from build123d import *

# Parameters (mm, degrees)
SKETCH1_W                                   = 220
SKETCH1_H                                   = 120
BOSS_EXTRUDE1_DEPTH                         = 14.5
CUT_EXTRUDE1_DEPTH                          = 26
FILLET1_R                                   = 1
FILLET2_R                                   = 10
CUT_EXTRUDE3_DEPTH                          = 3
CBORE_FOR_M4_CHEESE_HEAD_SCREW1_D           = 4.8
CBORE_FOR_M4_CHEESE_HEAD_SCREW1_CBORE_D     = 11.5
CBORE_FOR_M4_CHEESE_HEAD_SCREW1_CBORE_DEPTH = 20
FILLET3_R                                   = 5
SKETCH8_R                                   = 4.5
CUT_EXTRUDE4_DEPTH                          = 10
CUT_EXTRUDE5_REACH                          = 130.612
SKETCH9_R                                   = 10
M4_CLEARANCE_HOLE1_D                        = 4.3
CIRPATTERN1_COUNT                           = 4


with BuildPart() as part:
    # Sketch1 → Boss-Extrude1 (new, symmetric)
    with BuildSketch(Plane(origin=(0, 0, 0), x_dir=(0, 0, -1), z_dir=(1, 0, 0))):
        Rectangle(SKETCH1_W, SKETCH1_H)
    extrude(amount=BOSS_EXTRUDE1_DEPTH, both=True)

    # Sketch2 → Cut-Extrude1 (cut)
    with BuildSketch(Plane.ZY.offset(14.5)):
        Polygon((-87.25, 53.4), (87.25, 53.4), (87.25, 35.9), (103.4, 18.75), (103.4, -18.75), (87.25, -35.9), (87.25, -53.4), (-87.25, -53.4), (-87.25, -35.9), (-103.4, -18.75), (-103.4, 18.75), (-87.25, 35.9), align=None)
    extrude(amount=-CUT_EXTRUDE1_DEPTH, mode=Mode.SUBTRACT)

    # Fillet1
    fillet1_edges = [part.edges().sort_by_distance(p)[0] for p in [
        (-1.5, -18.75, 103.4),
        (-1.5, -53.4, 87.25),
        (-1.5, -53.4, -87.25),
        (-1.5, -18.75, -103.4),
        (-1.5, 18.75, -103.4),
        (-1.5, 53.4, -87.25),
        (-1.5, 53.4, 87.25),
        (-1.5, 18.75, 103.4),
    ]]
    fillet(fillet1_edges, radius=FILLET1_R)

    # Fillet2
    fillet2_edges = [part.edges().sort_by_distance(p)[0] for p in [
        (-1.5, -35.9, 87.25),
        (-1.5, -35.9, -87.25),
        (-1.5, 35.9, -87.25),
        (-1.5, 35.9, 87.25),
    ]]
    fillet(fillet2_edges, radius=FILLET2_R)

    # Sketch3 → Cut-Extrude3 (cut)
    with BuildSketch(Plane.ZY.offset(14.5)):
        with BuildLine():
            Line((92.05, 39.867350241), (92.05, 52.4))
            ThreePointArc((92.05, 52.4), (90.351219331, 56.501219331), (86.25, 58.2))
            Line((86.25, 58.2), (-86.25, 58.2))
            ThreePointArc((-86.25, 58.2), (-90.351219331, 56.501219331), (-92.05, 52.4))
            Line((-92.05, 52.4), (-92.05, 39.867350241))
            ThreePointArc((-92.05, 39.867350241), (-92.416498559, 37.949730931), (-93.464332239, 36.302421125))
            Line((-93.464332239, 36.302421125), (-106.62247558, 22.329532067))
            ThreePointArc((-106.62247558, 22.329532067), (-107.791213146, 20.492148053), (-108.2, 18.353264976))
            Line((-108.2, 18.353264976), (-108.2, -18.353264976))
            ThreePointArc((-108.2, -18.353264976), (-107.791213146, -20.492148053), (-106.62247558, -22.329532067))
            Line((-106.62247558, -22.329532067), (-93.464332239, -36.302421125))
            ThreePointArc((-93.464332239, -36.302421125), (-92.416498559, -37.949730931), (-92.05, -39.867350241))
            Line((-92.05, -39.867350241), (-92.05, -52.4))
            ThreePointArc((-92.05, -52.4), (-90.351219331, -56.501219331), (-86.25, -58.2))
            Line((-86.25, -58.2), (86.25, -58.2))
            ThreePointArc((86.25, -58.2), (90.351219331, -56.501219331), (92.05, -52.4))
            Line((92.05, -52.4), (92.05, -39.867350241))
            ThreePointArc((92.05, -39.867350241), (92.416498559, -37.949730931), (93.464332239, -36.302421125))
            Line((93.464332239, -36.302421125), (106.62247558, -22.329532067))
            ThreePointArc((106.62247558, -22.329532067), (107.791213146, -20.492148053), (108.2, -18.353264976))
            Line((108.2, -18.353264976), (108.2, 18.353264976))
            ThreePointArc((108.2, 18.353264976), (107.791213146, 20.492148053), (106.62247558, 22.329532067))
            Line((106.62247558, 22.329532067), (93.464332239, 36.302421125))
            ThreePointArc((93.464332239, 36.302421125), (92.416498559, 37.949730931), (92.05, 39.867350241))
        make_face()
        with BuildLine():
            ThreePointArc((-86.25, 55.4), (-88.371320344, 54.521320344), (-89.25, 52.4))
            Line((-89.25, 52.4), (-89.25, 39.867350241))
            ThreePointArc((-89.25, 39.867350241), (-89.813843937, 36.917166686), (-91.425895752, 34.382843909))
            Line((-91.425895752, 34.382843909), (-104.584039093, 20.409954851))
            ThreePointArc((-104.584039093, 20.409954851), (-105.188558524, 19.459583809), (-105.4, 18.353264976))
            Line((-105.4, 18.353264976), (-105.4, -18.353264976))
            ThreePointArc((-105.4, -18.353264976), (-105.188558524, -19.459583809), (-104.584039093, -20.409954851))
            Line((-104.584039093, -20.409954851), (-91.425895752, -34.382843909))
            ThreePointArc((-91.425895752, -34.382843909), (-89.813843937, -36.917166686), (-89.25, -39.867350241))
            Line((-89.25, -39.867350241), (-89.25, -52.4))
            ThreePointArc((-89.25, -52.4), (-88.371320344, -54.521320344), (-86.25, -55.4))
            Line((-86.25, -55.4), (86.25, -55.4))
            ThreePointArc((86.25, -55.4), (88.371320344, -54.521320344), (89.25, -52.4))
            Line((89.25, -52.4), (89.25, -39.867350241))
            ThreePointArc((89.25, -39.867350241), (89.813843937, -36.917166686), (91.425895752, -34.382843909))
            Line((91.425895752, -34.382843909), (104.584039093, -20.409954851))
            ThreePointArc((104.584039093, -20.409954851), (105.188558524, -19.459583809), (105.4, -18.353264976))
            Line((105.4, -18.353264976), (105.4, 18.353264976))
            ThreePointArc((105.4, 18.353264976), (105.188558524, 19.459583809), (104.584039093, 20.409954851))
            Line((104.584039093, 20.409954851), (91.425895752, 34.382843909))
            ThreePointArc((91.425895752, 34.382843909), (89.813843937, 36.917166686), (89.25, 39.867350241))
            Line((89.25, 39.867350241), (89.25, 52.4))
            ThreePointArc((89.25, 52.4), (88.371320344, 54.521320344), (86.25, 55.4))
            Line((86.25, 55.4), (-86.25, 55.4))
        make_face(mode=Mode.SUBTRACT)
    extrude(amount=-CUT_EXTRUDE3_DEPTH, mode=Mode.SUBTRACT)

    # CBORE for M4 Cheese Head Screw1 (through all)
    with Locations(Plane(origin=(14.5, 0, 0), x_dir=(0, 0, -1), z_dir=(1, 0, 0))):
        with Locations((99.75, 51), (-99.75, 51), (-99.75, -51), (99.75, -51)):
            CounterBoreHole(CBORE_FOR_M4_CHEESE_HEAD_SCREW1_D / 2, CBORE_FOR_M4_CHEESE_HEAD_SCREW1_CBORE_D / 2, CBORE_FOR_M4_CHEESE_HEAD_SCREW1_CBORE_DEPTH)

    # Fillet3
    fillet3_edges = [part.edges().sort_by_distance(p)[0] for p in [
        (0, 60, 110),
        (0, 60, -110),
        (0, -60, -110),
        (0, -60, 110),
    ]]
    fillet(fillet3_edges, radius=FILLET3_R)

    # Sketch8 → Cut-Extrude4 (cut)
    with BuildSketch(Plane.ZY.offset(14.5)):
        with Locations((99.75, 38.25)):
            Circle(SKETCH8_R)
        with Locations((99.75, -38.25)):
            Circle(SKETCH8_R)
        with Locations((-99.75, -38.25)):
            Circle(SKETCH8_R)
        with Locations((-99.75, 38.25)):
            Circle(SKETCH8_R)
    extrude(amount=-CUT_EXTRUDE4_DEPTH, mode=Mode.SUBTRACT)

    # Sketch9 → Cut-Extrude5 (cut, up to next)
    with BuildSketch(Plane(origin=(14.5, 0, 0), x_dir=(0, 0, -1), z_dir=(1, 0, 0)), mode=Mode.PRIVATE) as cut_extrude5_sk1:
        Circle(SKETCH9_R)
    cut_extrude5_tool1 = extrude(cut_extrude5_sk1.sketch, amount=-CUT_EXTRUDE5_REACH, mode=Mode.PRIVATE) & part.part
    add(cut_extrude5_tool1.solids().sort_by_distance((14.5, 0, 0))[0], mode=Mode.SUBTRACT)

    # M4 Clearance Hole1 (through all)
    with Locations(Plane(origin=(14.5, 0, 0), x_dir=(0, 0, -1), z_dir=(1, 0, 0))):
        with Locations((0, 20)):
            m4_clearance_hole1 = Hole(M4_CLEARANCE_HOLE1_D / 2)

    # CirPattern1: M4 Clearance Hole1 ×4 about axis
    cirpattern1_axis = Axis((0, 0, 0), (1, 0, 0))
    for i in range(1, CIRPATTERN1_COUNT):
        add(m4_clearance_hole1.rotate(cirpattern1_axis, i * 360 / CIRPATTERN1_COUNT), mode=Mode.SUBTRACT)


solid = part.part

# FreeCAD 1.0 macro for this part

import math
import FreeCAD as App
import Part
import Sketcher

V = App.Vector


def edges_at(feature, points):
    """Names of the edges that pass closest to the given points."""
    edges = feature.Shape.Edges
    near = lambda p: min(range(len(edges)), key=lambda i: edges[i].distToShape(Part.Vertex(*p))[0])
    return sorted({f"Edge{near(p) + 1}" for p in points})

doc = App.newDocument("Part")
params = doc.addObject("Spreadsheet::Sheet", "Params")
for row, (alias, value) in enumerate([
    ("sketch1_width", "120 mm"),
    ("sketch1_height", "220 mm"),
    ("pad1_length", "29 mm"),
    ("sketch2_width", "17.5 mm"),
    ("sketch2_width2", "37.5 mm"),
    ("sketch2_height", "174.5 mm"),
    ("pocket1_length", "26 mm"),
    ("fillet_radius", "1 mm"),
    ("fillet2_radius", "10 mm"),
    ("sketch3_radius", "3 mm"),
    ("sketch3_radius2", "8 mm"),
    ("sketch3_radius3", "5.8 mm"),
    ("sketch3_height", "172.5 mm"),
    ("pocket2_length", "3 mm"),
    ("sketch4_diameter", "4.8 mm"),
    ("hole_diameter", "4.8 mm"),
    ("hole_cbore_diameter", "11.5 mm"),
    ("hole_cbore_depth", "20 mm"),
    ("fillet3_radius", "5 mm"),
    ("sketch5_diameter", "9 mm"),
    ("pocket3_length", "10 mm"),
    ("sketch6_diameter", "20 mm"),
    ("sketch7_diameter", "4.3 mm"),
    ("hole2_diameter", "4.3 mm"),
], start=1):
    params.set(f"A{row}", alias)
    params.set(f"B{row}", "=" + value)
    params.setAlias(f"B{row}", alias)

body = doc.addObject("PartDesign::Body", "Body")

sketch1 = body.newObject("Sketcher::SketchObject", "Sketch")
sketch1.AttachmentSupport = (doc.getObject("YZ_Plane"), [""])
sketch1.MapMode = "FlatFace"
sketch1.addGeometry([
    Part.LineSegment(V(60, 110, 0), V(-60, 110, 0)),
    Part.LineSegment(V(-60, 110, 0), V(-60, -110, 0)),
    Part.LineSegment(V(-60, -110, 0), V(60, -110, 0)),
    Part.LineSegment(V(60, -110, 0), V(60, 110, 0)),
], False)
sketch1.addConstraint([
    Sketcher.Constraint("Coincident", 0, 2, 1, 1),
    Sketcher.Constraint("Coincident", 1, 2, 2, 1),
    Sketcher.Constraint("Coincident", 2, 2, 3, 1),
    Sketcher.Constraint("Coincident", 3, 2, 0, 1),
    Sketcher.Constraint("Horizontal", 0),
    Sketcher.Constraint("Vertical", 1),
    Sketcher.Constraint("Horizontal", 2),
    Sketcher.Constraint("Vertical", 3),
    Sketcher.Constraint("Symmetric", 0, 2, 2, 2, -1, 1),
    Sketcher.Constraint("DistanceX", 0, 2, 0, 1, 120.0),
    Sketcher.Constraint("DistanceY", 1, 2, 1, 1, 220.0),
])
sketch1.setExpression("Constraints[9]", "Params.sketch1_width")
sketch1.setExpression("Constraints[10]", "Params.sketch1_height")
pad1 = body.newObject("PartDesign::Pad", "Pad")
pad1.Profile = sketch1
pad1.setExpression("Length", "Params.pad1_length")
pad1.Midplane = True

sketch2 = body.newObject("Sketcher::SketchObject", "Sketch001")
sketch2.AttachmentSupport = (doc.getObject("YZ_Plane"), [""])
sketch2.MapMode = "FlatFace"
sketch2.AttachmentOffset = App.Placement(V(0, 0, -14.5), App.Rotation())
sketch2.addGeometry([
    Part.LineSegment(V(53, 87, 0), V(53, -87, 0)),
    Part.LineSegment(V(53, -87, 0), V(36, -87, 0)),
    Part.LineSegment(V(36, -87, 0), V(19, -103, 0)),
    Part.LineSegment(V(19, -103, 0), V(-19, -103, 0)),
    Part.LineSegment(V(-19, -103, 0), V(-36, -87, 0)),
    Part.LineSegment(V(-36, -87, 0), V(-53, -87, 0)),
    Part.LineSegment(V(-53, -87, 0), V(-53, 87, 0)),
    Part.LineSegment(V(-53, 87, 0), V(-36, 87, 0)),
    Part.LineSegment(V(-36, 87, 0), V(-19, 103, 0)),
    Part.LineSegment(V(-19, 103, 0), V(19, 103, 0)),
    Part.LineSegment(V(19, 103, 0), V(36, 87, 0)),
    Part.LineSegment(V(36, 87, 0), V(53, 87, 0)),
], False)
sketch2.addConstraint([
    Sketcher.Constraint("Coincident", 0, 2, 1, 1),
    Sketcher.Constraint("Coincident", 1, 2, 2, 1),
    Sketcher.Constraint("Coincident", 2, 2, 3, 1),
    Sketcher.Constraint("Coincident", 3, 2, 4, 1),
    Sketcher.Constraint("Coincident", 4, 2, 5, 1),
    Sketcher.Constraint("Coincident", 5, 2, 6, 1),
    Sketcher.Constraint("Coincident", 6, 2, 7, 1),
    Sketcher.Constraint("Coincident", 7, 2, 8, 1),
    Sketcher.Constraint("Coincident", 8, 2, 9, 1),
    Sketcher.Constraint("Coincident", 9, 2, 10, 1),
    Sketcher.Constraint("Coincident", 10, 2, 11, 1),
    Sketcher.Constraint("Coincident", 11, 2, 0, 1),
    Sketcher.Constraint("Vertical", 0),
    Sketcher.Constraint("Horizontal", 1),
    Sketcher.Constraint("Horizontal", 3),
    Sketcher.Constraint("Horizontal", 5),
    Sketcher.Constraint("Vertical", 6),
    Sketcher.Constraint("Horizontal", 7),
    Sketcher.Constraint("Horizontal", 9),
    Sketcher.Constraint("Horizontal", 11),
    Sketcher.Constraint("Symmetric", 0, 2, 6, 2, -1, 1),
    Sketcher.Constraint("Symmetric", 2, 2, 8, 2, -1, 1),
    Sketcher.Constraint("Symmetric", 4, 2, 10, 2, -1, 1),
    Sketcher.Constraint("Symmetric", 1, 2, 4, 2, -2),
    Sketcher.Constraint("Parallel", 2, 8),
    Sketcher.Constraint("Parallel", 4, 10),
    Sketcher.Constraint("Vertical", 3, 2, 8, 2),
    Sketcher.Constraint("DistanceX", 1, 2, 1, 1, 17.5),
    Sketcher.Constraint("DistanceX", 3, 2, 3, 1, 37.5),
    Sketcher.Constraint("DistanceY", 0, 2, 0, 1, 174.5),
    Sketcher.Constraint("DistanceX", -1, 1, 0, 2, 53.4),
    Sketcher.Constraint("DistanceY", 2, 2, -1, 1, 103.4),
])
sketch2.setExpression("Constraints[27]", "Params.sketch2_width")
sketch2.setExpression("Constraints[28]", "Params.sketch2_width2")
sketch2.setExpression("Constraints[29]", "Params.sketch2_height")
pocket1 = body.newObject("PartDesign::Pocket", "Pocket")
pocket1.Profile = sketch2
pocket1.setExpression("Length", "Params.pocket1_length")
pocket1.Reversed = True
doc.recompute()

fillet = body.newObject("PartDesign::Fillet", "Fillet")
fillet.Base = (pocket1, edges_at(pocket1, [
    (-1.5, -18.75, 103.4),
    (-1.5, -53.4, 87.25),
    (-1.5, -53.4, -87.25),
    (-1.5, -18.75, -103.4),
    (-1.5, 18.75, -103.4),
    (-1.5, 53.4, -87.25),
    (-1.5, 53.4, 87.25),
    (-1.5, 18.75, 103.4),
]))
fillet.setExpression("Radius", "Params.fillet_radius")
doc.recompute()

fillet2 = body.newObject("PartDesign::Fillet", "Fillet001")
fillet2.Base = (fillet, edges_at(fillet, [
    (-1.5, -35.9, 87.25),
    (-1.5, -35.9, -87.25),
    (-1.5, 35.9, -87.25),
    (-1.5, 35.9, 87.25),
]))
fillet2.setExpression("Radius", "Params.fillet2_radius")

sketch3 = body.newObject("Sketcher::SketchObject", "Sketch002")
sketch3.AttachmentSupport = (doc.getObject("YZ_Plane"), [""])
sketch3.MapMode = "FlatFace"
sketch3.AttachmentOffset = App.Placement(V(0, 0, -14.5), App.Rotation())
sketch3.addGeometry([
    Part.LineSegment(V(39.9, 92, 0), V(52.4, 92, 0)),
    Part.ArcOfCircle(Part.Circle(V(52.4, 86.2, 0), V(0, 0, 1), 5.8), math.radians(0), math.radians(90)),
    Part.LineSegment(V(58.2, 86.2, 0), V(58.2, -86.2, 0)),
    Part.ArcOfCircle(Part.Circle(V(52.4, -86.2, 0), V(0, 0, 1), 5.8), math.radians(-90), math.radians(0)),
    Part.LineSegment(V(52.4, -92, 0), V(39.9, -92, 0)),
    Part.ArcOfCircle(Part.Circle(V(39.9, -97.3, 0), V(0, 0, 1), 5.2), math.radians(90), math.radians(133)),
    Part.LineSegment(V(36.3, -93.5, 0), V(22.3, -106.6, 0)),
    Part.ArcOfCircle(Part.Circle(V(18.4, -102.4, 0), V(0, 0, 1), 5.8), math.radians(-90), math.radians(-47)),
    Part.LineSegment(V(18.4, -108.2, 0), V(-18.4, -108.2, 0)),
    Part.ArcOfCircle(Part.Circle(V(-18.4, -102.4, 0), V(0, 0, 1), 5.8), math.radians(-133), math.radians(-90)),
    Part.LineSegment(V(-22.3, -106.6, 0), V(-36.3, -93.5, 0)),
    Part.ArcOfCircle(Part.Circle(V(-39.9, -97.3, 0), V(0, 0, 1), 5.2), math.radians(47), math.radians(90)),
    Part.LineSegment(V(-39.9, -92, 0), V(-52.4, -92, 0)),
    Part.ArcOfCircle(Part.Circle(V(-52.4, -86.2, 0), V(0, 0, 1), 5.8), math.radians(180), math.radians(270)),
    Part.LineSegment(V(-58.2, -86.2, 0), V(-58.2, 86.2, 0)),
    Part.ArcOfCircle(Part.Circle(V(-52.4, 86.2, 0), V(0, 0, 1), 5.8), math.radians(90), math.radians(180)),
    Part.LineSegment(V(-52.4, 92, 0), V(-39.9, 92, 0)),
    Part.ArcOfCircle(Part.Circle(V(-39.9, 97.3, 0), V(0, 0, 1), 5.2), math.radians(-90), math.radians(-47)),
    Part.LineSegment(V(-36.3, 93.5, 0), V(-22.3, 106.6, 0)),
    Part.ArcOfCircle(Part.Circle(V(-18.4, 102.4, 0), V(0, 0, 1), 5.8), math.radians(90), math.radians(133)),
    Part.LineSegment(V(-18.4, 108.2, 0), V(18.4, 108.2, 0)),
    Part.ArcOfCircle(Part.Circle(V(18.4, 102.4, 0), V(0, 0, 1), 5.8), math.radians(47), math.radians(90)),
    Part.LineSegment(V(22.3, 106.6, 0), V(36.3, 93.5, 0)),
    Part.ArcOfCircle(Part.Circle(V(39.9, 97.3, 0), V(0, 0, 1), 5.2), math.radians(-133), math.radians(-90)),
    Part.ArcOfCircle(Part.Circle(V(52.4, -86.3, 0), V(0, 0, 1), 3), math.radians(-90), math.radians(0)),
    Part.LineSegment(V(55.4, -86.2, 0), V(55.4, 86.2, 0)),
    Part.ArcOfCircle(Part.Circle(V(52.4, 86.3, 0), V(0, 0, 1), 3), math.radians(0), math.radians(90)),
    Part.LineSegment(V(52.4, 89.2, 0), V(39.9, 89.2, 0)),
    Part.ArcOfCircle(Part.Circle(V(39.9, 97.2, 0), V(0, 0, 1), 8), math.radians(-133), math.radians(-90)),
    Part.LineSegment(V(34.4, 91.4, 0), V(20.4, 104.6, 0)),
    Part.ArcOfCircle(Part.Circle(V(18.4, 102.4, 0), V(0, 0, 1), 3), math.radians(47), math.radians(90)),
    Part.LineSegment(V(18.4, 105.4, 0), V(-18.4, 105.4, 0)),
    Part.ArcOfCircle(Part.Circle(V(-18.4, 102.4, 0), V(0, 0, 1), 3), math.radians(90), math.radians(133)),
    Part.LineSegment(V(-20.4, 104.6, 0), V(-34.4, 91.4, 0)),
    Part.ArcOfCircle(Part.Circle(V(-39.9, 97.2, 0), V(0, 0, 1), 8), math.radians(-90), math.radians(-47)),
    Part.LineSegment(V(-39.9, 89.2, 0), V(-52.4, 89.2, 0)),
    Part.ArcOfCircle(Part.Circle(V(-52.4, 86.3, 0), V(0, 0, 1), 3), math.radians(90), math.radians(180)),
    Part.LineSegment(V(-55.4, 86.2, 0), V(-55.4, -86.2, 0)),
    Part.ArcOfCircle(Part.Circle(V(-52.4, -86.3, 0), V(0, 0, 1), 3), math.radians(180), math.radians(270)),
    Part.LineSegment(V(-52.4, -89.2, 0), V(-39.9, -89.2, 0)),
    Part.ArcOfCircle(Part.Circle(V(-39.9, -97.2, 0), V(0, 0, 1), 8), math.radians(47), math.radians(90)),
    Part.LineSegment(V(-34.4, -91.4, 0), V(-20.4, -104.6, 0)),
    Part.ArcOfCircle(Part.Circle(V(-18.4, -102.4, 0), V(0, 0, 1), 3), math.radians(-133), math.radians(-90)),
    Part.LineSegment(V(-18.4, -105.4, 0), V(18.4, -105.4, 0)),
    Part.ArcOfCircle(Part.Circle(V(18.4, -102.4, 0), V(0, 0, 1), 3), math.radians(-90), math.radians(-47)),
    Part.LineSegment(V(20.4, -104.6, 0), V(34.4, -91.4, 0)),
    Part.ArcOfCircle(Part.Circle(V(39.9, -97.2, 0), V(0, 0, 1), 8), math.radians(90), math.radians(133)),
    Part.LineSegment(V(39.9, -89.2, 0), V(52.4, -89.2, 0)),
], False)
sketch3.addConstraint([
    Sketcher.Constraint("Tangent", 0, 2, 1, 2),
    Sketcher.Constraint("Tangent", 1, 1, 2, 1),
    Sketcher.Constraint("Tangent", 2, 2, 3, 2),
    Sketcher.Constraint("Tangent", 3, 1, 4, 1),
    Sketcher.Constraint("Tangent", 4, 2, 5, 1),
    Sketcher.Constraint("Tangent", 5, 2, 6, 1),
    Sketcher.Constraint("Tangent", 6, 2, 7, 2),
    Sketcher.Constraint("Tangent", 7, 1, 8, 1),
    Sketcher.Constraint("Tangent", 8, 2, 9, 2),
    Sketcher.Constraint("Tangent", 9, 1, 10, 1),
    Sketcher.Constraint("Tangent", 10, 2, 11, 1),
    Sketcher.Constraint("Tangent", 11, 2, 12, 1),
    Sketcher.Constraint("Tangent", 12, 2, 13, 2),
    Sketcher.Constraint("Tangent", 13, 1, 14, 1),
    Sketcher.Constraint("Tangent", 14, 2, 15, 2),
    Sketcher.Constraint("Tangent", 15, 1, 16, 1),
    Sketcher.Constraint("Tangent", 16, 2, 17, 1),
    Sketcher.Constraint("Tangent", 17, 2, 18, 1),
    Sketcher.Constraint("Tangent", 18, 2, 19, 2),
    Sketcher.Constraint("Tangent", 19, 1, 20, 1),
    Sketcher.Constraint("Tangent", 20, 2, 21, 2),
    Sketcher.Constraint("Tangent", 21, 1, 22, 1),
    Sketcher.Constraint("Tangent", 22, 2, 23, 1),
    Sketcher.Constraint("Tangent", 23, 2, 0, 1),
    Sketcher.Constraint("Tangent", 24, 2, 25, 1),
    Sketcher.Constraint("Tangent", 25, 2, 26, 1),
    Sketcher.Constraint("Tangent", 26, 2, 27, 1),
    Sketcher.Constraint("Tangent", 27, 2, 28, 2),
    Sketcher.Constraint("Tangent", 28, 1, 29, 1),
    Sketcher.Constraint("Tangent", 29, 2, 30, 1),
    Sketcher.Constraint("Tangent", 30, 2, 31, 1),
    Sketcher.Constraint("Tangent", 31, 2, 32, 1),
    Sketcher.Constraint("Tangent", 32, 2, 33, 1),
    Sketcher.Constraint("Tangent", 33, 2, 34, 2),
    Sketcher.Constraint("Tangent", 34, 1, 35, 1),
    Sketcher.Constraint("Tangent", 35, 2, 36, 1),
    Sketcher.Constraint("Tangent", 36, 2, 37, 1),
    Sketcher.Constraint("Tangent", 37, 2, 38, 1),
    Sketcher.Constraint("Tangent", 38, 2, 39, 1),
    Sketcher.Constraint("Tangent", 39, 2, 40, 2),
    Sketcher.Constraint("Tangent", 40, 1, 41, 1),
    Sketcher.Constraint("Tangent", 41, 2, 42, 1),
    Sketcher.Constraint("Tangent", 42, 2, 43, 1),
    Sketcher.Constraint("Tangent", 43, 2, 44, 1),
    Sketcher.Constraint("Tangent", 44, 2, 45, 1),
    Sketcher.Constraint("Tangent", 45, 2, 46, 2),
    Sketcher.Constraint("Tangent", 46, 1, 47, 1),
    Sketcher.Constraint("Tangent", 47, 2, 24, 1),
    Sketcher.Constraint("Horizontal", 0),
    Sketcher.Constraint("Vertical", 2),
    Sketcher.Constraint("Horizontal", 4),
    Sketcher.Constraint("Horizontal", 8),
    Sketcher.Constraint("Horizontal", 12),
    Sketcher.Constraint("Vertical", 14),
    Sketcher.Constraint("Horizontal", 16),
    Sketcher.Constraint("Horizontal", 20),
    Sketcher.Constraint("Vertical", 25),
    Sketcher.Constraint("Horizontal", 27),
    Sketcher.Constraint("Horizontal", 31),
    Sketcher.Constraint("Horizontal", 35),
    Sketcher.Constraint("Vertical", 37),
    Sketcher.Constraint("Horizontal", 39),
    Sketcher.Constraint("Horizontal", 43),
    Sketcher.Constraint("Horizontal", 47),
    Sketcher.Constraint("Coincident", 24, 3, 3, 3),
    Sketcher.Constraint("Coincident", 26, 3, 1, 3),
    Sketcher.Constraint("Coincident", 28, 3, 23, 3),
    Sketcher.Constraint("Coincident", 30, 3, 21, 3),
    Sketcher.Constraint("Coincident", 32, 3, 19, 3),
    Sketcher.Constraint("Coincident", 34, 3, 17, 3),
    Sketcher.Constraint("Coincident", 36, 3, 15, 3),
    Sketcher.Constraint("Coincident", 38, 3, 13, 3),
    Sketcher.Constraint("Coincident", 40, 3, 11, 3),
    Sketcher.Constraint("Coincident", 42, 3, 9, 3),
    Sketcher.Constraint("Coincident", 44, 3, 7, 3),
    Sketcher.Constraint("Coincident", 46, 3, 5, 3),
    Sketcher.Constraint("Equal", 1, 3),
    Sketcher.Constraint("Equal", 3, 7),
    Sketcher.Constraint("Equal", 7, 9),
    Sketcher.Constraint("Equal", 5, 11),
    Sketcher.Constraint("Equal", 9, 13),
    Sketcher.Constraint("Equal", 13, 15),
    Sketcher.Constraint("Equal", 11, 17),
    Sketcher.Constraint("Equal", 15, 19),
    Sketcher.Constraint("Equal", 19, 21),
    Sketcher.Constraint("Equal", 17, 23),
    Sketcher.Constraint("Equal", 26, 30),
    Sketcher.Constraint("Equal", 28, 34),
    Sketcher.Constraint("Equal", 38, 42),
    Sketcher.Constraint("Symmetric", 1, 3, 13, 3, -1, 1),
    Sketcher.Constraint("Symmetric", 5, 3, 17, 3, -1, 1),
    Sketcher.Constraint("Symmetric", 7, 3, 19, 3, -1, 1),
    Sketcher.Constraint("Symmetric", 9, 1, 21, 1, -1, 1),
    Sketcher.Constraint("Symmetric", 5, 3, 11, 3, -2),
    Sketcher.Constraint("Horizontal", 6, 2, 9, 1),
    Sketcher.Constraint("Radius", 24, 3.0),
    Sketcher.Constraint("Radius", 28, 8.0),
    Sketcher.Constraint("Radius", 1, 5.8),
    Sketcher.Constraint("DistanceY", 2, 2, 2, 1, 172.5),
    Sketcher.Constraint("DistanceX", -1, 1, 1, 3, 52.4),
    Sketcher.Constraint("DistanceY", 7, 3, -1, 1, 102.4),
    Sketcher.Constraint("DistanceX", 0, 1, 0, 2, 12.53265),
    Sketcher.Constraint("DistanceX", 8, 2, 8, 1, 36.70653),
])
sketch3.setExpression("Constraints[95]", "Params.sketch3_radius")
sketch3.setExpression("Constraints[96]", "Params.sketch3_radius2")
sketch3.setExpression("Constraints[97]", "Params.sketch3_radius3")
sketch3.setExpression("Constraints[98]", "Params.sketch3_height")
pocket2 = body.newObject("PartDesign::Pocket", "Pocket001")
pocket2.Profile = sketch3
pocket2.setExpression("Length", "Params.pocket2_length")
pocket2.Reversed = True

sketch4 = body.newObject("Sketcher::SketchObject", "Sketch003")
sketch4.AttachmentSupport = (doc.getObject("YZ_Plane"), [""])
sketch4.MapMode = "FlatFace"
sketch4.AttachmentOffset = App.Placement(V(0, 0, 14.5), App.Rotation())
sketch4.addGeometry([
    Part.Circle(V(51, -99.8, 0), V(0, 0, 1), 2.4),
    Part.Circle(V(51, 99.8, 0), V(0, 0, 1), 2.4),
    Part.Circle(V(-51, 99.8, 0), V(0, 0, 1), 2.4),
    Part.Circle(V(-51, -99.8, 0), V(0, 0, 1), 2.4),
], False)
sketch4.addConstraint([
    Sketcher.Constraint("Equal", 0, 1),
    Sketcher.Constraint("Equal", 1, 2),
    Sketcher.Constraint("Equal", 2, 3),
    Sketcher.Constraint("Symmetric", 0, 3, 2, 3, -1, 1),
    Sketcher.Constraint("Symmetric", 1, 3, 3, 3, -1, 1),
    Sketcher.Constraint("Symmetric", 1, 3, 2, 3, -2),
    Sketcher.Constraint("Diameter", 0, 4.8),
    Sketcher.Constraint("DistanceX", -1, 1, 0, 3, 51.0),
    Sketcher.Constraint("DistanceY", 0, 3, 1, 3, 199.5),
])
sketch4.setExpression("Constraints[6]", "Params.sketch4_diameter")
doc.recompute()
hole = body.newObject("PartDesign::Hole", "Hole")
hole.Profile = sketch4
hole.ThreadType = "None"
hole.setExpression("Diameter", "Params.hole_diameter")
hole.DepthType = "ThroughAll"
hole.HoleCutType = "Counterbore"
hole.setExpression("HoleCutDiameter", "Params.hole_cbore_diameter")
hole.setExpression("HoleCutDepth", "Params.hole_cbore_depth")
doc.recompute()

fillet3 = body.newObject("PartDesign::Fillet", "Fillet002")
fillet3.Base = (hole, edges_at(hole, [
    (0, 60, 110),
    (0, 60, -110),
    (0, -60, -110),
    (0, -60, 110),
]))
fillet3.setExpression("Radius", "Params.fillet3_radius")

sketch5 = body.newObject("Sketcher::SketchObject", "Sketch004")
sketch5.AttachmentSupport = (doc.getObject("YZ_Plane"), [""])
sketch5.MapMode = "FlatFace"
sketch5.AttachmentOffset = App.Placement(V(0, 0, -14.5), App.Rotation())
sketch5.addGeometry([
    Part.Circle(V(38.2, 99.8, 0), V(0, 0, 1), 4.5),
    Part.Circle(V(-38.2, 99.8, 0), V(0, 0, 1), 4.5),
    Part.Circle(V(-38.2, -99.8, 0), V(0, 0, 1), 4.5),
    Part.Circle(V(38.2, -99.8, 0), V(0, 0, 1), 4.5),
], False)
sketch5.addConstraint([
    Sketcher.Constraint("Equal", 0, 1),
    Sketcher.Constraint("Equal", 1, 2),
    Sketcher.Constraint("Equal", 2, 3),
    Sketcher.Constraint("Symmetric", 0, 3, 2, 3, -1, 1),
    Sketcher.Constraint("Symmetric", 1, 3, 3, 3, -1, 1),
    Sketcher.Constraint("Symmetric", 0, 3, 1, 3, -2),
    Sketcher.Constraint("Diameter", 0, 9.0),
    Sketcher.Constraint("DistanceX", 1, 3, 0, 3, 76.5),
    Sketcher.Constraint("DistanceY", 2, 3, 1, 3, 199.5),
])
sketch5.setExpression("Constraints[6]", "Params.sketch5_diameter")
pocket3 = body.newObject("PartDesign::Pocket", "Pocket002")
pocket3.Profile = sketch5
pocket3.setExpression("Length", "Params.pocket3_length")
pocket3.Reversed = True

sketch6 = body.newObject("Sketcher::SketchObject", "Sketch005")
sketch6.AttachmentSupport = (doc.getObject("YZ_Plane"), [""])
sketch6.MapMode = "FlatFace"
sketch6.AttachmentOffset = App.Placement(V(0, 0, 14.5), App.Rotation())
sketch6.addGeometry(Part.Circle(V(0, 0, 0), V(0, 0, 1), 10), False)
sketch6.addConstraint([
    Sketcher.Constraint("Coincident", 0, 3, -1, 1),
    Sketcher.Constraint("Diameter", 0, 20.0),
])
sketch6.setExpression("Constraints[1]", "Params.sketch6_diameter")
pocket4 = body.newObject("PartDesign::Pocket", "Pocket003")
pocket4.Profile = sketch6
pocket4.Type = "UpToFirst"

sketch7 = body.newObject("Sketcher::SketchObject", "Sketch006")
sketch7.AttachmentSupport = (doc.getObject("YZ_Plane"), [""])
sketch7.MapMode = "FlatFace"
sketch7.AttachmentOffset = App.Placement(V(0, 0, 14.5), App.Rotation())
sketch7.addGeometry(Part.Circle(V(20, 0, 0), V(0, 0, 1), 2.1), False)
sketch7.addConstraint([
    Sketcher.Constraint("PointOnObject", 0, 3, -1),
    Sketcher.Constraint("Diameter", 0, 4.3),
    Sketcher.Constraint("DistanceX", -1, 1, 0, 3, 20.0),
])
sketch7.setExpression("Constraints[1]", "Params.sketch7_diameter")
doc.recompute()
hole2 = body.newObject("PartDesign::Hole", "Hole001")
hole2.Profile = sketch7
hole2.ThreadType = "None"
hole2.setExpression("Diameter", "Params.hole2_diameter")
hole2.DepthType = "ThroughAll"
doc.recompute()

polarpattern = body.newObject("PartDesign::PolarPattern", "PolarPattern")
polarpattern.Originals = [hole2]
polarpattern.Axis = (doc.getObject("X_Axis"), [""])
polarpattern.Angle = 360
polarpattern.Occurrences = 4
body.Tip = polarpattern

doc.recompute()
